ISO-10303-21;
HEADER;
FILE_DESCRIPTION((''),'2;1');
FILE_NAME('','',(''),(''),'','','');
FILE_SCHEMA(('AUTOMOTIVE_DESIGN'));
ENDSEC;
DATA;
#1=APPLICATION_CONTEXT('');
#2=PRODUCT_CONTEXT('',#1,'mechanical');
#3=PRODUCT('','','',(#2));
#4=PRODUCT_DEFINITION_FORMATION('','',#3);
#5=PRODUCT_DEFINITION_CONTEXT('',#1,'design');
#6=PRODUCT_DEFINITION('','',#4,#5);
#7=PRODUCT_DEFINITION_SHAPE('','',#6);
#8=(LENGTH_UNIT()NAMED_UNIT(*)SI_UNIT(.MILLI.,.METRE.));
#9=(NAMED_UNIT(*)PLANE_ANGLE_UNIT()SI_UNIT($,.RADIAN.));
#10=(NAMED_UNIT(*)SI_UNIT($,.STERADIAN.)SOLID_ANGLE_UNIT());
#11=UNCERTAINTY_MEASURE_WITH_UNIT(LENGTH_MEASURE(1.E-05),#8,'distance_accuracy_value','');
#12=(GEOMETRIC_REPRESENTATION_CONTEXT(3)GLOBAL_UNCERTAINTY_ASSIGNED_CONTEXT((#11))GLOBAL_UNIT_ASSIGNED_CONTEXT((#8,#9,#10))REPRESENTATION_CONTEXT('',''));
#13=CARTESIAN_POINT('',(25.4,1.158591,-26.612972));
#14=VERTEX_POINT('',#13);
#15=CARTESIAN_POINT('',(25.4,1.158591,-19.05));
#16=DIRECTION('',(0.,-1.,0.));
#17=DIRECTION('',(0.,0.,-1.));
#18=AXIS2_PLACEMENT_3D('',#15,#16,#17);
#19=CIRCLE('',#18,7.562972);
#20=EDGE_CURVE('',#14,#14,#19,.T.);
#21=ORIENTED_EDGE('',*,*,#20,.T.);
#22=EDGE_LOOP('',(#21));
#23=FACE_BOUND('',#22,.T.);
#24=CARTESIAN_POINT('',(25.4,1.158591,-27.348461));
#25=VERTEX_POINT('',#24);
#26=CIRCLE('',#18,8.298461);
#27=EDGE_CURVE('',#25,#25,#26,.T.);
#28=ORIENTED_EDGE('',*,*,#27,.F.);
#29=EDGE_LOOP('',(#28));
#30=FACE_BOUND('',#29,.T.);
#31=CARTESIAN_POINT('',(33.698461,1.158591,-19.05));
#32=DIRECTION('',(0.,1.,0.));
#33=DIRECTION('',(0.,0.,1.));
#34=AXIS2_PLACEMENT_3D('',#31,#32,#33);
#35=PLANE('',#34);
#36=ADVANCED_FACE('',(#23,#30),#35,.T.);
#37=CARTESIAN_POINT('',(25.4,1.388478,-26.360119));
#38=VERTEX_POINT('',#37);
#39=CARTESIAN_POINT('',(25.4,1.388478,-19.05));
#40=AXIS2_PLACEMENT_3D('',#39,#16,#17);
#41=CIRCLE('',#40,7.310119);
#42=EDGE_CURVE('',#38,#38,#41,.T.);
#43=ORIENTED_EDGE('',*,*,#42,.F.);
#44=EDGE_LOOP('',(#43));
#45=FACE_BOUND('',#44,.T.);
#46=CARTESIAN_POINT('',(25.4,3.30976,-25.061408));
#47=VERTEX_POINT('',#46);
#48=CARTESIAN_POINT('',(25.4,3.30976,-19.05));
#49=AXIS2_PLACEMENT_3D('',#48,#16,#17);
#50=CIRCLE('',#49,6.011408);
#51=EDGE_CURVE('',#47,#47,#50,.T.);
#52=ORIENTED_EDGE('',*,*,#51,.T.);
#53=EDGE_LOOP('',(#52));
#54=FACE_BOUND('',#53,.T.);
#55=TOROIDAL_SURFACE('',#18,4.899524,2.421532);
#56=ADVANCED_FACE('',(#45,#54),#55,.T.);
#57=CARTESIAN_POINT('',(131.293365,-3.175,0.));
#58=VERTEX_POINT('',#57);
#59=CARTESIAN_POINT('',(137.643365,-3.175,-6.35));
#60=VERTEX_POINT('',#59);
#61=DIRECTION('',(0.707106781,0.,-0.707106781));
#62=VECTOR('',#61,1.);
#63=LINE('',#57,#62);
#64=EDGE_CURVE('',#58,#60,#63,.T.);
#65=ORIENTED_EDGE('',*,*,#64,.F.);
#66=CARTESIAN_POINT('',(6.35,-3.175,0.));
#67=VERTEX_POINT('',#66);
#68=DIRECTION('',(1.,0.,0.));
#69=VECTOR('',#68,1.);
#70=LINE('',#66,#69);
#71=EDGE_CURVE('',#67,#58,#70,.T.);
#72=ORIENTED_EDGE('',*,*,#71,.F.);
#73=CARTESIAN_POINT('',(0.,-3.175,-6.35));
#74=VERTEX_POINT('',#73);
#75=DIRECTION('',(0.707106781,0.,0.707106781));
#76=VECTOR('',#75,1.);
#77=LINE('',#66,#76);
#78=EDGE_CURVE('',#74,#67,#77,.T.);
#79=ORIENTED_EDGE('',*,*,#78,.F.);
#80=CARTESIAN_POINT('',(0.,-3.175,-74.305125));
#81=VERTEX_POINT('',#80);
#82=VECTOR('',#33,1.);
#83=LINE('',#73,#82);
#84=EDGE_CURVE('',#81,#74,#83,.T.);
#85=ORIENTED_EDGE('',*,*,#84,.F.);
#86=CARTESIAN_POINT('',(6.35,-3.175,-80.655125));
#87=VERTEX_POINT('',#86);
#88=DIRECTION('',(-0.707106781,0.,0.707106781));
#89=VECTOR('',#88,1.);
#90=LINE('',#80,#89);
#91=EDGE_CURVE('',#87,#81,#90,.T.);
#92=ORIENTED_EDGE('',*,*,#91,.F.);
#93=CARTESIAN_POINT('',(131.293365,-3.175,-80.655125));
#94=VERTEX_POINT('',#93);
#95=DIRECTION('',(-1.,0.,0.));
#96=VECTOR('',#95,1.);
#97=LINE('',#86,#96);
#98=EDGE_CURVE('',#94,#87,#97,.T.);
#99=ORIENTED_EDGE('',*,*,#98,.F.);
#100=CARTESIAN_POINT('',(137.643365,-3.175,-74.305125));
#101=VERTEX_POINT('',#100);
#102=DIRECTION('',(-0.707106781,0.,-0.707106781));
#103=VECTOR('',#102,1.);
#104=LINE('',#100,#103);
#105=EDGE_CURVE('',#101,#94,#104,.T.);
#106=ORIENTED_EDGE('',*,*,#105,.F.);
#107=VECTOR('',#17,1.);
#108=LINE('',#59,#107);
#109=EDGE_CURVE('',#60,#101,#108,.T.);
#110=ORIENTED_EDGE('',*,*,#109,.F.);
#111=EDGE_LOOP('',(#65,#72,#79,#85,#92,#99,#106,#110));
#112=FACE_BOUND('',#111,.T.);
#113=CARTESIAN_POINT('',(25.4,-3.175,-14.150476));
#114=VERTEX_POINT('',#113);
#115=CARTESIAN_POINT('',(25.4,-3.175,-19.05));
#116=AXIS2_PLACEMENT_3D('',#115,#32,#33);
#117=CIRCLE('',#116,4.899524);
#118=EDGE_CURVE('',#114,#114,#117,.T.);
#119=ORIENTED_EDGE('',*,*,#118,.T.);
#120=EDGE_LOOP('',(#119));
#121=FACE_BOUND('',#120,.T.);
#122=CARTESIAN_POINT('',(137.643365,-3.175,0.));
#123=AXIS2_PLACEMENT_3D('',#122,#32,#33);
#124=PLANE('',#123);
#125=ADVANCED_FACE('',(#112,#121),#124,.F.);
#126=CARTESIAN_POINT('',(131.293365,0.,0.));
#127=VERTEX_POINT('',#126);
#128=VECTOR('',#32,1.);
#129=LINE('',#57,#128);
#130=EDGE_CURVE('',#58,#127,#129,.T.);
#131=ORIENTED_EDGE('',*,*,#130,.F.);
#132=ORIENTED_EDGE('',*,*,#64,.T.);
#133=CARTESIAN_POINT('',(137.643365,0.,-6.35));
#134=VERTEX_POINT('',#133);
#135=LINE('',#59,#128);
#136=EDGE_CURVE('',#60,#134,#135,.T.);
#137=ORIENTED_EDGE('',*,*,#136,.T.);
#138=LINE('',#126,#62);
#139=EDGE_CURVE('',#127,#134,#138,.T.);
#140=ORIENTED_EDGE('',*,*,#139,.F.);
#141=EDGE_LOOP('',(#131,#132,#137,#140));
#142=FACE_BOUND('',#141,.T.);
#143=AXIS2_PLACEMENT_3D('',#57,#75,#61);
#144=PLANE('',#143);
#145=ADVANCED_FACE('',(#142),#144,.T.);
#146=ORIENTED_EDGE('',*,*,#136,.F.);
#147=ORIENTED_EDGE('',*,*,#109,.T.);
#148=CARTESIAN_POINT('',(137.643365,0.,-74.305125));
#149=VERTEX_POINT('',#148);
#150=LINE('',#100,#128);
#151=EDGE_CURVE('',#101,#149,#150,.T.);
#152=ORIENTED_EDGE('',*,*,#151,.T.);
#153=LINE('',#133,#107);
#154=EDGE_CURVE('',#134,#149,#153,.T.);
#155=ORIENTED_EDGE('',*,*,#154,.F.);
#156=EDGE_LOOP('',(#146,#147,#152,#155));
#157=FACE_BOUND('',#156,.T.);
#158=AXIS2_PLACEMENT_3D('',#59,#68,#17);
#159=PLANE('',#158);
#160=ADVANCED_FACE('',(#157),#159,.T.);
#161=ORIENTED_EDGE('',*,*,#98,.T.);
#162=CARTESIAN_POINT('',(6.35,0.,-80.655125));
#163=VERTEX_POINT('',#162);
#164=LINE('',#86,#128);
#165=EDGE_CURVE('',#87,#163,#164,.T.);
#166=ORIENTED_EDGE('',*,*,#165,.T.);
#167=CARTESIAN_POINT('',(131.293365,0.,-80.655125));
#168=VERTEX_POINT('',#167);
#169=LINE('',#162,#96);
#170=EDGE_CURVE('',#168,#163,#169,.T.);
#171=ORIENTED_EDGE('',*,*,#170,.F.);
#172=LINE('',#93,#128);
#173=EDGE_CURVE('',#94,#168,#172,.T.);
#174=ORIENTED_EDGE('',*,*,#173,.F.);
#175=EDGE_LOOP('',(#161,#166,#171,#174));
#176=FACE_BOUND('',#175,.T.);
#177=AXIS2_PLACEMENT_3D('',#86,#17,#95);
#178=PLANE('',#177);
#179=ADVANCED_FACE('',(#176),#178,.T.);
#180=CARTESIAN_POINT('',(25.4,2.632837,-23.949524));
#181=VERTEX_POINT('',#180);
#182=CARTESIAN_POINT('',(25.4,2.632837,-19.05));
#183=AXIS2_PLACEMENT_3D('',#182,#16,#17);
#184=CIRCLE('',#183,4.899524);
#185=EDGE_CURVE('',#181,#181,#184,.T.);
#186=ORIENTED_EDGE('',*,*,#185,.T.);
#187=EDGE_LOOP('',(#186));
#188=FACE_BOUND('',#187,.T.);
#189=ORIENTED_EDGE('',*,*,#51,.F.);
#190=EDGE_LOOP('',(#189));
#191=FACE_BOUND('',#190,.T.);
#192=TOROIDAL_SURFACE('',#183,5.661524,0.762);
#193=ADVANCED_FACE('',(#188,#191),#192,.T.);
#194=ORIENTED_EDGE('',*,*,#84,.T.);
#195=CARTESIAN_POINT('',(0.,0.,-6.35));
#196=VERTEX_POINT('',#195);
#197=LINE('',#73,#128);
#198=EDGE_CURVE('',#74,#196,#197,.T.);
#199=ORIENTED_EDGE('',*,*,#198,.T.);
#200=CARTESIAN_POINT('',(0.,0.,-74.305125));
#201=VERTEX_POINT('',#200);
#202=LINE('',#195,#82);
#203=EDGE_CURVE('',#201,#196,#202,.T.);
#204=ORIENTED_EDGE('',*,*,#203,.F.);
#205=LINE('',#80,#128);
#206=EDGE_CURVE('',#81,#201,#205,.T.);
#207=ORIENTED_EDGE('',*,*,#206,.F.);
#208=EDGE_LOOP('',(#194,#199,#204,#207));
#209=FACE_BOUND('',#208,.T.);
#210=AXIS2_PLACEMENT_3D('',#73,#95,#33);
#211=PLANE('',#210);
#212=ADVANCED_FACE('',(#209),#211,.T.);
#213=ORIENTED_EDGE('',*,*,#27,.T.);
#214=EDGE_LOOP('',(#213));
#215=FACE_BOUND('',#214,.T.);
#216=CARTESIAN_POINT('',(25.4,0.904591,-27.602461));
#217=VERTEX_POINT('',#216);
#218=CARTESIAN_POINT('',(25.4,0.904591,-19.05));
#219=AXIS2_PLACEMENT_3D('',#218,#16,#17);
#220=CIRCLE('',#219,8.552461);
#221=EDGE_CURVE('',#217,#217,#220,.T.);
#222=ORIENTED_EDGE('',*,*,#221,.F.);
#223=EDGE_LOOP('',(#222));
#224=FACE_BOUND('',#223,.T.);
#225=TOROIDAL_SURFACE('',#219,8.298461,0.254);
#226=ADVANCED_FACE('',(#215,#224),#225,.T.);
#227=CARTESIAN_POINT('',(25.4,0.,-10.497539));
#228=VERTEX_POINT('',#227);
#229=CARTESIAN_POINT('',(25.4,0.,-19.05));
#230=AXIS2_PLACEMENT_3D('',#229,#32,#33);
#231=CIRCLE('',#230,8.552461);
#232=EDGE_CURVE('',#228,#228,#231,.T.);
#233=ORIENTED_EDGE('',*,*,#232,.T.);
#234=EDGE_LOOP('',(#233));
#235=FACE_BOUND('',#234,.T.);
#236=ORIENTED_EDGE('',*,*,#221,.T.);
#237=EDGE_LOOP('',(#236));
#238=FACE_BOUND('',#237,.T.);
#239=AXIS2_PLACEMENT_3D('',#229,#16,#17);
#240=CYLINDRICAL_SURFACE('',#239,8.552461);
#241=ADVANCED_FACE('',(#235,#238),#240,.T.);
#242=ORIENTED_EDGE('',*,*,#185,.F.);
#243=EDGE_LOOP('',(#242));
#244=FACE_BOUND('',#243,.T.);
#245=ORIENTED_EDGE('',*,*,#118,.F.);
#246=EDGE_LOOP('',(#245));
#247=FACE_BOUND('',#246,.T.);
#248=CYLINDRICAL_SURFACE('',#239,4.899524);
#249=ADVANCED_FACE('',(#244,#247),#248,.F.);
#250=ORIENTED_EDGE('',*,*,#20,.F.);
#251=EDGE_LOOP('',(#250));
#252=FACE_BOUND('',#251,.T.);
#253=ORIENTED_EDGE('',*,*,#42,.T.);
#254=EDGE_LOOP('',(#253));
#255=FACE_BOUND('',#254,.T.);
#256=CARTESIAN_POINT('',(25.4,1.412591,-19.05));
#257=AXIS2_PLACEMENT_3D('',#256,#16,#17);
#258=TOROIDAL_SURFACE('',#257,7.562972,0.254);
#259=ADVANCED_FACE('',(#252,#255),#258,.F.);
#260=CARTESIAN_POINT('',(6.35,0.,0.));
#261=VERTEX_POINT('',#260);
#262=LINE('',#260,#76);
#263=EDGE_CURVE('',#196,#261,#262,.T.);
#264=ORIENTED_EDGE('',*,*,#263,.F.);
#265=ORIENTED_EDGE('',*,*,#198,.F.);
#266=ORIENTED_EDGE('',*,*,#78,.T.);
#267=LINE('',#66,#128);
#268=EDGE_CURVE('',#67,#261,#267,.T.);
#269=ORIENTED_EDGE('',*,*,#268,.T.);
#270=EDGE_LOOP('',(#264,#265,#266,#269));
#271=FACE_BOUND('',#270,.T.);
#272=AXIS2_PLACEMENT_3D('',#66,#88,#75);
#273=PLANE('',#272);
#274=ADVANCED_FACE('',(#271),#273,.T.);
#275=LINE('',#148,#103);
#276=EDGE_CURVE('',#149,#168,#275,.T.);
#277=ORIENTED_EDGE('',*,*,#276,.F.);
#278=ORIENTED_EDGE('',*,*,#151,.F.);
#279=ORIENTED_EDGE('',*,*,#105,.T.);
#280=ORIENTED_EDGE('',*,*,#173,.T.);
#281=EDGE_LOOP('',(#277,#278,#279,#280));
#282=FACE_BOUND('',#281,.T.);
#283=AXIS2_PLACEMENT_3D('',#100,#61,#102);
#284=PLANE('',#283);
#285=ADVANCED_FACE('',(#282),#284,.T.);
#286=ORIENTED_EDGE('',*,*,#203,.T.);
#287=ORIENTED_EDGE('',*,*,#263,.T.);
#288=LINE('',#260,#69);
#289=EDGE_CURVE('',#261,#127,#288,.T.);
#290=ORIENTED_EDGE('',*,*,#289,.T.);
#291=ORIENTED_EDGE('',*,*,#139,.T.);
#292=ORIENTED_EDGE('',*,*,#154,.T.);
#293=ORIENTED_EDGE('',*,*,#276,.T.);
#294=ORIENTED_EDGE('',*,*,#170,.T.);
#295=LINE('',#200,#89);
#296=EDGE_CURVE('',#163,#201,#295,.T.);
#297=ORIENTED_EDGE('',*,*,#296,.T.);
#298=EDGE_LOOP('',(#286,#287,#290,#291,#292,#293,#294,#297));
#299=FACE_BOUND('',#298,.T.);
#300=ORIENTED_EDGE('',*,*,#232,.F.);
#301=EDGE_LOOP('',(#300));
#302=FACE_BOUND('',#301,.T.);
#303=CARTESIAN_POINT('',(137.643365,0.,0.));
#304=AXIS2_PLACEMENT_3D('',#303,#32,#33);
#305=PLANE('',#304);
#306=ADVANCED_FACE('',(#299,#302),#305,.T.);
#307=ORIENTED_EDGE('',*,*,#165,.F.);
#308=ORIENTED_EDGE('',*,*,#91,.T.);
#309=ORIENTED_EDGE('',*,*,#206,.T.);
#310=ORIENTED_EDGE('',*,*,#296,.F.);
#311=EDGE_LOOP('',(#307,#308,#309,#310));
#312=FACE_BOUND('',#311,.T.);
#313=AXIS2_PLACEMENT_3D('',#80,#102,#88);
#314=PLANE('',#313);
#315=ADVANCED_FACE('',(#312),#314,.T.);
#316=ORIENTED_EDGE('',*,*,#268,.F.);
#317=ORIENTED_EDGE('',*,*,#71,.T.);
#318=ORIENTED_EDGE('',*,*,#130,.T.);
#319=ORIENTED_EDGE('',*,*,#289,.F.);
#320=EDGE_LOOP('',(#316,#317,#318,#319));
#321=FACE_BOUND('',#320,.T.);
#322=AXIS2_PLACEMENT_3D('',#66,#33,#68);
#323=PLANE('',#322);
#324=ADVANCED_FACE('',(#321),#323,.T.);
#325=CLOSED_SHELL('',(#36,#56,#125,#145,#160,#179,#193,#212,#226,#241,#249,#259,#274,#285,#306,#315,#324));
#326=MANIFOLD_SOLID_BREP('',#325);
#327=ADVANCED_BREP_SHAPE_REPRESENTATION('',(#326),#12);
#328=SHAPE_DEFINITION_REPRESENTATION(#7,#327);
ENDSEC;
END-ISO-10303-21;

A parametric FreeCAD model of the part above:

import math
import FreeCAD as App
import Part
import Sketcher
from FreeCAD import Vector
Q = App.Units.Quantity

doc = App.newDocument("Part")
body = doc.addObject("PartDesign::Body", "Body")

# Sketch on XZ plane
sketch1 = body.newObject("Sketcher::SketchObject", "Sketch")
sketch1.AttachmentSupport = (doc.getObject("XZ_Plane"), [""])
sketch1.MapMode = "FlatFace"
sketch1.addGeometry(Part.LineSegment(Vector(131.293365, 0, 0), Vector(137.643365, -6.35, 0)), False)
sketch1.addGeometry(Part.LineSegment(Vector(137.643365, -6.35, 0), Vector(137.643365, -74.305125, 0)), False)
sketch1.addGeometry(Part.LineSegment(Vector(137.643365, -74.305125, 0), Vector(131.293365, -80.655125, 0)), False)
sketch1.addGeometry(Part.LineSegment(Vector(131.293365, -80.655125, 0), Vector(6.35, -80.655125, 0)), False)
sketch1.addGeometry(Part.LineSegment(Vector(6.35, -80.655125, 0), Vector(0, -74.305125, 0)), False)
sketch1.addGeometry(Part.LineSegment(Vector(0, -74.305125, 0), Vector(0, -6.35, 0)), False)
sketch1.addGeometry(Part.LineSegment(Vector(0, -6.35, 0), Vector(6.35, 0, 0)), False)
sketch1.addGeometry(Part.LineSegment(Vector(6.35, 0, 0), Vector(131.293365, 0, 0)), False)
sketch1.addConstraint(Sketcher.Constraint("Coincident", 0, 2, 1, 1))
sketch1.addConstraint(Sketcher.Constraint("Coincident", 1, 2, 2, 1))
sketch1.addConstraint(Sketcher.Constraint("Coincident", 2, 2, 3, 1))
sketch1.addConstraint(Sketcher.Constraint("Coincident", 3, 2, 4, 1))
sketch1.addConstraint(Sketcher.Constraint("Coincident", 4, 2, 5, 1))
sketch1.addConstraint(Sketcher.Constraint("Coincident", 5, 2, 6, 1))
sketch1.addConstraint(Sketcher.Constraint("Coincident", 6, 2, 7, 1))
sketch1.addConstraint(Sketcher.Constraint("Coincident", 7, 2, 0, 1))
sketch1.addConstraint(Sketcher.Constraint("Vertical", 1))
sketch1.addConstraint(Sketcher.Constraint("Horizontal", 3))
sketch1.addConstraint(Sketcher.Constraint("Vertical", 5))
sketch1.addConstraint(Sketcher.Constraint("Horizontal", 7))
sketch1.addConstraint(Sketcher.Constraint("PointOnObject", 4, 2, -2))
sketch1.addConstraint(Sketcher.Constraint("PointOnObject", 6, 2, -1))
sketch1.addConstraint(Sketcher.Constraint("Perpendicular", 0, 2))
sketch1.addConstraint(Sketcher.Constraint("Perpendicular", 2, 4))
sketch1.addConstraint(Sketcher.Constraint("Perpendicular", 4, 6))
sketch1.addConstraint(Sketcher.Constraint("Horizontal", 1, 2, 4, 2))
sketch1.addConstraint(Sketcher.Constraint("Horizontal", 0, 2, 5, 2))
sketch1.addConstraint(Sketcher.Constraint("Vertical", 3, 2, 6, 2))
sketch1.addConstraint(Sketcher.Constraint("Vertical", 2, 2, 7, 2))
sketch1.addConstraint(Sketcher.Constraint("DistanceY", 0, 2, -1, 1, Q("0.25 in")))
sketch1.addConstraint(Sketcher.Constraint("DistanceX", 3, 2, 3, 1, 124.943365))
sketch1.addConstraint(Sketcher.Constraint("DistanceY", 1, 2, 1, 1, 67.955125))
pad1 = body.newObject("PartDesign::Pad", "Pad")
pad1.Profile = sketch1
pad1.Length = Q("0.125 in")

# Sketch on XY plane
sketch2 = body.newObject("Sketcher::SketchObject", "Sketch001")
sketch2.AttachmentSupport = (doc.getObject("XY_Plane"), [""])
sketch2.MapMode = "FlatFace"
sketch2.AttachmentOffset = App.Placement(Vector(0, 0, -0.75 * 25.4), App.Rotation())
sketch2.addGeometry(Part.LineSegment(Vector(25.4, 0, 0), Vector(33.952461, 0, 0)), False)
sketch2.addGeometry(Part.LineSegment(Vector(33.952461, 0, 0), Vector(33.952461, 0.904591, 0)), False)
sketch2.addGeometry(Part.ArcOfCircle(Part.Circle(Vector(33.698461, 0.904591, 0), Vector(0, 0, 1), 0.254), math.radians(0), math.radians(90)), False)
sketch2.addGeometry(Part.LineSegment(Vector(33.698461, 1.158591, 0), Vector(32.962972, 1.158591, 0)), False)
sketch2.addGeometry(Part.ArcOfCircle(Part.Circle(Vector(32.962972, 1.412591, 0), Vector(0, 0, 1), 0.254), math.radians(-174.552457), math.radians(-90)), False)
sketch2.addGeometry(Part.ArcOfCircle(Part.Circle(Vector(30.299524, 1.158591, 0), Vector(0, 0, 1), 2.421532), math.radians(5.447544), math.radians(62.666719)), False)
sketch2.addGeometry(Part.ArcOfCircle(Part.Circle(Vector(31.061524, 2.632837, 0), Vector(0, 0, 1), 0.762), math.radians(62.666719), math.radians(180)), False)
sketch2.addGeometry(Part.LineSegment(Vector(30.299524, 2.632837, 0), Vector(30.299524, 1.803708, 0)), False)
sketch2.addGeometry(Part.LineSegment(Vector(30.299524, 1.803708, 0), Vector(25.4, 1.803708, 0)), False)
sketch2.addGeometry(Part.LineSegment(Vector(25.4, 1.803708, 0), Vector(25.4, 0, 0)), False)
sketch2.addGeometry(Part.LineSegment(Vector(25.4, 0, 0), Vector(25.4, 3.30976, 0)), True)  # axis
sketch2.addConstraint(Sketcher.Constraint("Coincident", 0, 2, 1, 1))
sketch2.addConstraint(Sketcher.Constraint("Tangent", 1, 2, 2, 1))
sketch2.addConstraint(Sketcher.Constraint("Tangent", 2, 2, 3, 1))
sketch2.addConstraint(Sketcher.Constraint("Tangent", 3, 2, 4, 2))
sketch2.addConstraint(Sketcher.Constraint("Tangent", 4, 1, 5, 1))
sketch2.addConstraint(Sketcher.Constraint("Tangent", 5, 2, 6, 1))
sketch2.addConstraint(Sketcher.Constraint("Tangent", 6, 2, 7, 1))
sketch2.addConstraint(Sketcher.Constraint("Coincident", 7, 2, 8, 1))
sketch2.addConstraint(Sketcher.Constraint("Coincident", 8, 2, 9, 1))
sketch2.addConstraint(Sketcher.Constraint("Coincident", 9, 2, 0, 1))
sketch2.addConstraint(Sketcher.Constraint("Horizontal", 0))
sketch2.addConstraint(Sketcher.Constraint("Vertical", 1))
sketch2.addConstraint(Sketcher.Constraint("Horizontal", 3))
sketch2.addConstraint(Sketcher.Constraint("Vertical", 7))
sketch2.addConstraint(Sketcher.Constraint("Horizontal", 8))
sketch2.addConstraint(Sketcher.Constraint("Vertical", 9))
sketch2.addConstraint(Sketcher.Constraint("Vertical", 10))
sketch2.addConstraint(Sketcher.Constraint("Coincident", 10, 1, 9, 2))
sketch2.addConstraint(Sketcher.Constraint("Equal", 2, 4))
sketch2.addConstraint(Sketcher.Constraint("PointOnObject", 0, 2, -1))
sketch2.addConstraint(Sketcher.Constraint("Horizontal", 5, 3, 2, 2))
sketch2.addConstraint(Sketcher.Constraint("Horizontal", 5, 2, 10, 2))
sketch2.addConstraint(Sketcher.Constraint("Vertical", 5, 3, 6, 2))
sketch2.addConstraint(Sketcher.Constraint("Radius", 2, Q("0.01 in")))
sketch2.addConstraint(Sketcher.Constraint("Radius", 6, Q("0.03 in")))
sketch2.addConstraint(Sketcher.Constraint("DistanceX", -1, 1, 8, 2, Q("1 in")))
sketch2.addConstraint(Sketcher.Constraint("Radius", 5, 2.421532))
sketch2.addConstraint(Sketcher.Constraint("DistanceX", -1, 1, 4, 1, Q("1.2878 in")))
sketch2.addConstraint(Sketcher.Constraint("DistanceX", 0, 1, 0, 2, 8.552461))
sketch2.addConstraint(Sketcher.Constraint("DistanceY", 1, 1, 1, 2, 0.904591))
sketch2.addConstraint(Sketcher.Constraint("DistanceY", 7, 2, 7, 1, 0.829129))
revolution = body.newObject("PartDesign::Revolution", "Revolution")
revolution.Profile = sketch2
revolution.ReferenceAxis = (sketch2, ["Axis0"])
revolution.Angle = 360

# Sketch on XZ plane
sketch3 = body.newObject("Sketcher::SketchObject", "Sketch002")
sketch3.AttachmentSupport = (doc.getObject("XZ_Plane"), [""])
sketch3.MapMode = "FlatFace"
sketch3.addGeometry(Part.Circle(Vector(25.4, -19.05, 0), Vector(0, 0, 1), 4.899524), False)
sketch3.addConstraint(Sketcher.Constraint("DistanceX", -1, 1, 0, 3, Q("1 in")))
sketch3.addConstraint(Sketcher.Constraint("DistanceY", 0, 3, -1, 1, Q("0.75 in")))
sketch3.addConstraint(Sketcher.Constraint("Diameter", 0, 9.799048))
pocket1 = body.newObject("PartDesign::Pocket", "Pocket")
pocket1.Profile = sketch3
pocket1.Length = Q("0.545 in")
pocket1.Midplane = True

doc.recompute()
